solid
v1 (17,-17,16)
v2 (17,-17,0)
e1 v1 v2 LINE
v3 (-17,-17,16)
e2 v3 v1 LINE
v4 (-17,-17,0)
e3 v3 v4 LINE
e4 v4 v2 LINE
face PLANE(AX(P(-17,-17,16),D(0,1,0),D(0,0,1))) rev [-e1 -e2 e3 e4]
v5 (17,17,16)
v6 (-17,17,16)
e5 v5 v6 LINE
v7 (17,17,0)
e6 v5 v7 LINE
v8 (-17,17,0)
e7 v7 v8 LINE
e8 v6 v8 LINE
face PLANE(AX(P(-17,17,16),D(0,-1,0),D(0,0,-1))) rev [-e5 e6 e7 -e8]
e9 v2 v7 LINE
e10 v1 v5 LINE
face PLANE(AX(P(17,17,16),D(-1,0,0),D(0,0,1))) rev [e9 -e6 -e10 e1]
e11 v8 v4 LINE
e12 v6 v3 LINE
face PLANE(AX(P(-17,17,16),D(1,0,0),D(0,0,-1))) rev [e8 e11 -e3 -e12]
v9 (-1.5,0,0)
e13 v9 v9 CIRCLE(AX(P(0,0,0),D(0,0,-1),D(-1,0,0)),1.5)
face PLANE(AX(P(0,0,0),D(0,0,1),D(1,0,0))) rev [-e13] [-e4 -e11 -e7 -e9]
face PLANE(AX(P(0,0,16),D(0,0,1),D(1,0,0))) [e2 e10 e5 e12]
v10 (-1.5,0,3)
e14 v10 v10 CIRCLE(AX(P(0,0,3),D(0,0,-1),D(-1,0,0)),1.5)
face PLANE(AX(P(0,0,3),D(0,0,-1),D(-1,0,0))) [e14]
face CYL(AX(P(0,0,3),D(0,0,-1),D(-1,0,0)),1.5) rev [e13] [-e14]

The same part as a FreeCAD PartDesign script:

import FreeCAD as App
import Part
import Sketcher

V = App.Vector

doc = App.newDocument("Part")
body = doc.addObject("PartDesign::Body", "Body")

sketch1 = doc.addObject("Sketcher::SketchObject", "Sketch")
body.addObject(sketch1)
sketch1.AttachmentSupport = (doc.XY_Plane, [""])
sketch1.MapMode = "FlatFace"
sketch1.addGeometry([
    Part.LineSegment(V(-17, 17, 0), V(-17, -17, 0)),
    Part.LineSegment(V(-17, -17, 0), V(17, -17, 0)),
    Part.LineSegment(V(17, -17, 0), V(17, 17, 0)),
    Part.LineSegment(V(17, 17, 0), V(-17, 17, 0)),
], False)
sketch1.addConstraint([
    Sketcher.Constraint("Coincident", 0, 2, 1, 1),
    Sketcher.Constraint("Coincident", 1, 2, 2, 1),
    Sketcher.Constraint("Coincident", 2, 2, 3, 1),
    Sketcher.Constraint("Coincident", 3, 2, 0, 1),
    Sketcher.Constraint("Vertical", 0),
    Sketcher.Constraint("Horizontal", 1),
    Sketcher.Constraint("Vertical", 2),
    Sketcher.Constraint("Horizontal", 3),
    Sketcher.Constraint("Symmetric", 0, 2, 2, 2, -1, 1),
    Sketcher.Constraint("Equal", 3, 0),
    Sketcher.Constraint("DistanceX", 1, 1, 1, 2, 34.0),
])
pad1 = doc.addObject("PartDesign::Pad", "Pad")
body.addObject(pad1)
pad1.Profile = sketch1
pad1.Length = 16

sketch2 = doc.addObject("Sketcher::SketchObject", "Sketch001")
body.addObject(sketch2)
sketch2.AttachmentSupport = (doc.XY_Plane, [""])
sketch2.MapMode = "FlatFace"
sketch2.addGeometry(Part.Circle(V(0, 0, 0), V(0, 0, 1), 1.5), False)
sketch2.addConstraint([
    Sketcher.Constraint("Coincident", 0, 3, -1, 1),
    Sketcher.Constraint("Diameter", 0, 3.0),
])
pocket1 = doc.addObject("PartDesign::Pocket", "Pocket")
body.addObject(pocket1)
pocket1.Profile = sketch2
pocket1.Length = 3
pocket1.Reversed = True

doc.recompute()
